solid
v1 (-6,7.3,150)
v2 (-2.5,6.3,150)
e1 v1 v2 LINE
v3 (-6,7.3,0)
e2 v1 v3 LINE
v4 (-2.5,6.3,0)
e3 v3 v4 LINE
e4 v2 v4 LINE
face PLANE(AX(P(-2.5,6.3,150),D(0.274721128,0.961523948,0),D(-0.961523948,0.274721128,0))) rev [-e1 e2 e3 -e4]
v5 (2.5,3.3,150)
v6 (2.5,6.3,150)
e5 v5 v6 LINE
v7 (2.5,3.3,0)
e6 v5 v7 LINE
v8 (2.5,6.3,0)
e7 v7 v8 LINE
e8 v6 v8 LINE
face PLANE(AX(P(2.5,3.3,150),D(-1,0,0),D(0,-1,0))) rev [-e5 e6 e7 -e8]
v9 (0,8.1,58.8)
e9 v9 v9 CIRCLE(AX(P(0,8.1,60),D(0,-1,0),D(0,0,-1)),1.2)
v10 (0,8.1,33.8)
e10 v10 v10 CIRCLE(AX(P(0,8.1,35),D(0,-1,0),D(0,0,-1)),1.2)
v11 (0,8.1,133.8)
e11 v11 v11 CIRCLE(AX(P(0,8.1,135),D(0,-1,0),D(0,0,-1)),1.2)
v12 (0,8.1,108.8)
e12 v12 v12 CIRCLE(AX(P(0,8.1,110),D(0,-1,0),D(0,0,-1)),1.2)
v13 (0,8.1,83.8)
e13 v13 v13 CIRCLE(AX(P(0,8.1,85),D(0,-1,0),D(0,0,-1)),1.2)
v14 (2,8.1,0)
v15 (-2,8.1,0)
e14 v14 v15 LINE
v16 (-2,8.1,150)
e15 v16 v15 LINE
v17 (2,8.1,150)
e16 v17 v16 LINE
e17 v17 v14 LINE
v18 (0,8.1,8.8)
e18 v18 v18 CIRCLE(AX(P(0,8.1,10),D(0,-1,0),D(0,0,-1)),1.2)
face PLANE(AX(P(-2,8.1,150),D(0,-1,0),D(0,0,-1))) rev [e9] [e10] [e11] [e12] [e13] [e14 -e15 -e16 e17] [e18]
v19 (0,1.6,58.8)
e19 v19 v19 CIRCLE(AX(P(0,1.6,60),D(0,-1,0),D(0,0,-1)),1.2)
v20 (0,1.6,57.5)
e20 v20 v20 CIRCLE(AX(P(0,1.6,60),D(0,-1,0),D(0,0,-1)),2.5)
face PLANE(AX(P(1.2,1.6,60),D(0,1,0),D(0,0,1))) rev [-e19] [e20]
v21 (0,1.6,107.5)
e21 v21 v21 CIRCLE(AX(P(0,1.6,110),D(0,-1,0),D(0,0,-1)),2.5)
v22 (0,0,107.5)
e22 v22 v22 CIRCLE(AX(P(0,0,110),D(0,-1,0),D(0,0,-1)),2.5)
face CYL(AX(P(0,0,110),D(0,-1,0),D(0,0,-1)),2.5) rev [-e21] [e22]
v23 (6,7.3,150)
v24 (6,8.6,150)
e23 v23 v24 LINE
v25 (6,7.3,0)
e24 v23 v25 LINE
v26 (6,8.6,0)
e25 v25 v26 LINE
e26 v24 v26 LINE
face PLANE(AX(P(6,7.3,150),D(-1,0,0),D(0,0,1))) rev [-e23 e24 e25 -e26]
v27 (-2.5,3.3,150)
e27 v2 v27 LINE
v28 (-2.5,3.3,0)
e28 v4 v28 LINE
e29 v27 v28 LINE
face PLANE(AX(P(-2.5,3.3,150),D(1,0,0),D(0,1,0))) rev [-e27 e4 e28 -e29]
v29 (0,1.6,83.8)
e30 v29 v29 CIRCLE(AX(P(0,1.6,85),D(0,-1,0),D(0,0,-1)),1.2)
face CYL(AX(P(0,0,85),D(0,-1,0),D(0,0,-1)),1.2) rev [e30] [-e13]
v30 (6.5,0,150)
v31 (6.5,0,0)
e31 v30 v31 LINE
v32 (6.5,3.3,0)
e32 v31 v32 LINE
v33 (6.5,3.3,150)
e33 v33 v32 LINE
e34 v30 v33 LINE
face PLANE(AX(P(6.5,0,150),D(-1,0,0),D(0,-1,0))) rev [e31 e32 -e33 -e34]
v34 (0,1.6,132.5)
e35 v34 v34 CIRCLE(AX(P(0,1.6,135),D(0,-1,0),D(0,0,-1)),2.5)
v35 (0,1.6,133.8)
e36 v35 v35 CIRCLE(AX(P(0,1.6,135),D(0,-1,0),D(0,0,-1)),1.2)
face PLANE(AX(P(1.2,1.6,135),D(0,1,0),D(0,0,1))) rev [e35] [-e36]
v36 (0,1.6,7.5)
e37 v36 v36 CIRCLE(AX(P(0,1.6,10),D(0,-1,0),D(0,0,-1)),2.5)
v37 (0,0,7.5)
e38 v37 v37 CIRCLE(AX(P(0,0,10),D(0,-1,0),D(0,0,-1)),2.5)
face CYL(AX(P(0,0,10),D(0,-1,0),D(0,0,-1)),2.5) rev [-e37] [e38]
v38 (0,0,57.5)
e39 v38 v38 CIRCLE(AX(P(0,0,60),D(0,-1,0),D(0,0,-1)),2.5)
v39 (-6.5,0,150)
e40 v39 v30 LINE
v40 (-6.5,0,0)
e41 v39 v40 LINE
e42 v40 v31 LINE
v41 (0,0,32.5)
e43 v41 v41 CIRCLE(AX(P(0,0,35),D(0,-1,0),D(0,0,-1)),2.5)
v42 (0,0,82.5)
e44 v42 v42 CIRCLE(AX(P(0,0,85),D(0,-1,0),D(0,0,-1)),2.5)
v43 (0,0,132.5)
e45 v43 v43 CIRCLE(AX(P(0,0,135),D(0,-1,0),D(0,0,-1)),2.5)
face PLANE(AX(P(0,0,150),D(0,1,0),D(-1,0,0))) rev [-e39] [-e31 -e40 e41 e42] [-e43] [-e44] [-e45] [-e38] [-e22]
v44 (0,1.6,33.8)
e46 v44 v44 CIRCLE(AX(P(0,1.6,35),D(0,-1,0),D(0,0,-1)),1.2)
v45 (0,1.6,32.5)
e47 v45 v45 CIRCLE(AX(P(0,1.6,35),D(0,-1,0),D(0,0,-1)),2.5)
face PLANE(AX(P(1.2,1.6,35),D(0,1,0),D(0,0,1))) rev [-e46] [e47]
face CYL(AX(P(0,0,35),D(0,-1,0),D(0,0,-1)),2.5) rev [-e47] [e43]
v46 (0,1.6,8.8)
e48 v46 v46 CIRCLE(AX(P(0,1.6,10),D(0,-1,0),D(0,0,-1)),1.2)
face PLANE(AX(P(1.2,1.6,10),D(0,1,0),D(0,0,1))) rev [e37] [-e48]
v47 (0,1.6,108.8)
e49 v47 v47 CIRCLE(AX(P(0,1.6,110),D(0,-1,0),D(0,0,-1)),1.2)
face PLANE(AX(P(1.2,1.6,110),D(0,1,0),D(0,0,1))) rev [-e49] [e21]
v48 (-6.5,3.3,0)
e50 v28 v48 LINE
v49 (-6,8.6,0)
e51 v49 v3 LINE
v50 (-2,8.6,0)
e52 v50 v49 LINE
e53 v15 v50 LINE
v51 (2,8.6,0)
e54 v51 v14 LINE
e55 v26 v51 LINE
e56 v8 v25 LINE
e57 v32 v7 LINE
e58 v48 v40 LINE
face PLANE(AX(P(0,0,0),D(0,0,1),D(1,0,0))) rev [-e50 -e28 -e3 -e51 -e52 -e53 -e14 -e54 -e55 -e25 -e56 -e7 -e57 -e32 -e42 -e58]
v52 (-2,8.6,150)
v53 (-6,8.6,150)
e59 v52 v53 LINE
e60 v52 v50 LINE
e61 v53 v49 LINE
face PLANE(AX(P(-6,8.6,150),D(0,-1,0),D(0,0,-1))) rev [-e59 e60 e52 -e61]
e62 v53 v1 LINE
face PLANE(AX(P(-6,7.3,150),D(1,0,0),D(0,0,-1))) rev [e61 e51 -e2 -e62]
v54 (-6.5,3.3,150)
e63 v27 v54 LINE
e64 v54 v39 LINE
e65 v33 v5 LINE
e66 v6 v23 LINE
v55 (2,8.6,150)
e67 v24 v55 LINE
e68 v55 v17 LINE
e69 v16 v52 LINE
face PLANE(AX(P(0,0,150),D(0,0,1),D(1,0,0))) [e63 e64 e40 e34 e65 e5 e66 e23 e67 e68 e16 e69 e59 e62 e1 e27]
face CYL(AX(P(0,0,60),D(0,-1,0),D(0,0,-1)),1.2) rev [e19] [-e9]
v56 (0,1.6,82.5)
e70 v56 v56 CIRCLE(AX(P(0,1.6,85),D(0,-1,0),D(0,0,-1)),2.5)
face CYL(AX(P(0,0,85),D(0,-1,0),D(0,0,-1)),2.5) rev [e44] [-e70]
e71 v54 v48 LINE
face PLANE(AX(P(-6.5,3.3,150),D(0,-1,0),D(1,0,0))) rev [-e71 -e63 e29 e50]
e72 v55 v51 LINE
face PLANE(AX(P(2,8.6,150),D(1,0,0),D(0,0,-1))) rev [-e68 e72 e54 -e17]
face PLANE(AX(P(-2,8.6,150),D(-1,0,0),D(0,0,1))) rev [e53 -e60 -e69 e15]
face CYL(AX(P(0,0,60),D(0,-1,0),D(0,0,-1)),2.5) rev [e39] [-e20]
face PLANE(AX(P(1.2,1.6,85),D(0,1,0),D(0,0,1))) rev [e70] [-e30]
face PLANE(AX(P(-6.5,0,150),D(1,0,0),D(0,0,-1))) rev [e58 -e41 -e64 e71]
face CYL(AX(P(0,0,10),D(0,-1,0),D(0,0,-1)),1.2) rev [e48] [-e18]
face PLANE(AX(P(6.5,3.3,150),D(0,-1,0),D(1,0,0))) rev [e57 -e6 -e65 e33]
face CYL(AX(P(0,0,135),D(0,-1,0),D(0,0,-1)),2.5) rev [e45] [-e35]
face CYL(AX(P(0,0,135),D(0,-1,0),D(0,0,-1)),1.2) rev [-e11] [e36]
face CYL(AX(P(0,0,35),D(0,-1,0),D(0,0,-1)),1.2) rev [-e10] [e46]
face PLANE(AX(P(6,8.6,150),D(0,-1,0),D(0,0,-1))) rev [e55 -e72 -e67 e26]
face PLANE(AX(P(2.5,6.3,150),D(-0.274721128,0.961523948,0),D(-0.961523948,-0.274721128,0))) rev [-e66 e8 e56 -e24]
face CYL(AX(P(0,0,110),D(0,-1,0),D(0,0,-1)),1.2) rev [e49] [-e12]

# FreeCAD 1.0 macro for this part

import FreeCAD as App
import Part
import Sketcher
from FreeCAD import Vector
Q = App.Units.Quantity

doc = App.newDocument("Part")
body = doc.addObject("PartDesign::Body", "Body")

# Sketch on XY plane
sketch1 = body.newObject("Sketcher::SketchObject", "Sketch")
sketch1.AttachmentSupport = (doc.getObject("XY_Plane"), [""])
sketch1.MapMode = "FlatFace"
sketch1.addGeometry([
    Part.LineSegment(Vector(-6.5, 0, 0), Vector(6.5, 0, 0)),  # 0
    Part.LineSegment(Vector(6.5, 0, 0), Vector(6.5, 3.3, 0)),  # 1
    Part.LineSegment(Vector(6.5, 3.3, 0), Vector(2.5, 3.3, 0)),  # 2
    Part.LineSegment(Vector(2.5, 3.3, 0), Vector(2.5, 6.3, 0)),  # 3
    Part.LineSegment(Vector(2.5, 6.3, 0), Vector(6, 7.3, 0)),  # 4
    Part.LineSegment(Vector(6, 7.3, 0), Vector(6, 8.6, 0)),  # 5
    Part.LineSegment(Vector(6, 8.6, 0), Vector(2, 8.6, 0)),  # 6
    Part.LineSegment(Vector(2, 8.6, 0), Vector(2, 8.1, 0)),  # 7
    Part.LineSegment(Vector(2, 8.1, 0), Vector(-2, 8.1, 0)),  # 8
    Part.LineSegment(Vector(-2, 8.1, 0), Vector(-2, 8.6, 0)),  # 9
    Part.LineSegment(Vector(-2, 8.6, 0), Vector(-6, 8.6, 0)),  # 10
    Part.LineSegment(Vector(-6, 8.6, 0), Vector(-6, 7.3, 0)),  # 11
    Part.LineSegment(Vector(-6, 7.3, 0), Vector(-2.5, 6.3, 0)),  # 12
    Part.LineSegment(Vector(-2.5, 6.3, 0), Vector(-2.5, 3.3, 0)),  # 13
    Part.LineSegment(Vector(-2.5, 3.3, 0), Vector(-6.5, 3.3, 0)),  # 14
    Part.LineSegment(Vector(-6.5, 3.3, 0), Vector(-6.5, 0, 0)),  # 15
], False)
sketch1.addConstraint([
    Sketcher.Constraint("Coincident", 0, 2, 1, 1),
    Sketcher.Constraint("Coincident", 1, 2, 2, 1),
    Sketcher.Constraint("Coincident", 2, 2, 3, 1),
    Sketcher.Constraint("Coincident", 3, 2, 4, 1),
    Sketcher.Constraint("Coincident", 4, 2, 5, 1),
    Sketcher.Constraint("Coincident", 5, 2, 6, 1),
    Sketcher.Constraint("Coincident", 6, 2, 7, 1),
    Sketcher.Constraint("Coincident", 7, 2, 8, 1),
    Sketcher.Constraint("Coincident", 8, 2, 9, 1),
    Sketcher.Constraint("Coincident", 9, 2, 10, 1),
    Sketcher.Constraint("Coincident", 10, 2, 11, 1),
    Sketcher.Constraint("Coincident", 11, 2, 12, 1),
    Sketcher.Constraint("Coincident", 12, 2, 13, 1),
    Sketcher.Constraint("Coincident", 13, 2, 14, 1),
    Sketcher.Constraint("Coincident", 14, 2, 15, 1),
    Sketcher.Constraint("Coincident", 15, 2, 0, 1),
    Sketcher.Constraint("Horizontal", 0),
    Sketcher.Constraint("Vertical", 1),
    Sketcher.Constraint("Horizontal", 2),
    Sketcher.Constraint("Vertical", 3),
    Sketcher.Constraint("Vertical", 5),
    Sketcher.Constraint("Horizontal", 6),
    Sketcher.Constraint("Vertical", 7),
    Sketcher.Constraint("Horizontal", 8),
    Sketcher.Constraint("Vertical", 9),
    Sketcher.Constraint("Horizontal", 10),
    Sketcher.Constraint("Vertical", 11),
    Sketcher.Constraint("Vertical", 13),
    Sketcher.Constraint("Horizontal", 14),
    Sketcher.Constraint("Vertical", 15),
    Sketcher.Constraint("Symmetric", 0, 2, 15, 2, -1, 1),
    Sketcher.Constraint("Symmetric", 6, 2, 9, 2, -2),
    Sketcher.Constraint("Symmetric", 4, 2, 11, 2, -2),
    Sketcher.Constraint("Symmetric", 3, 2, 12, 2, -2),
    Sketcher.Constraint("Horizontal", 2, 2, 13, 2),
    Sketcher.Constraint("Equal", 2, 6),
    Sketcher.Constraint("Equal", 6, 8),
    Sketcher.Constraint("DistanceX", 0, 1, 0, 2, Q("13 mm")),
    Sketcher.Constraint("DistanceX", 2, 2, 2, 1, Q("4 mm")),
    Sketcher.Constraint("DistanceY", 3, 1, 3, 2, Q("3 mm")),
    Sketcher.Constraint("DistanceY", 1, 1, 1, 2, Q("3.3 mm")),
    Sketcher.Constraint("DistanceY", 5, 1, 5, 2, Q("1.3 mm")),
    Sketcher.Constraint("DistanceY", 7, 2, 7, 1, Q("0.5 mm")),
    Sketcher.Constraint("DistanceY", 3, 2, 4, 2, Q("1 mm")),
])
pad1 = body.newObject("PartDesign::Pad", "Pad")
pad1.Profile = sketch1
pad1.Length = 150

# Sketch on XZ plane
sketch2 = body.newObject("Sketcher::SketchObject", "Sketch001")
sketch2.AttachmentSupport = (doc.getObject("XZ_Plane"), [""])
sketch2.MapMode = "FlatFace"
sketch2.addGeometry([
    Part.Circle(Vector(0, 85, 0), Vector(0, 0, 1), 1.2),  # 0
    Part.Circle(Vector(0, 60, 0), Vector(0, 0, 1), 1.2),  # 1
    Part.Circle(Vector(0, 35, 0), Vector(0, 0, 1), 1.2),  # 2
    Part.Circle(Vector(0, 10, 0), Vector(0, 0, 1), 1.2),  # 3
    Part.Circle(Vector(0, 110, 0), Vector(0, 0, 1), 1.2),  # 4
    Part.Circle(Vector(0, 135, 0), Vector(0, 0, 1), 1.2),  # 5
], False)
sketch2.addConstraint([
    Sketcher.Constraint("Equal", 0, 1),
    Sketcher.Constraint("Equal", 1, 2),
    Sketcher.Constraint("Equal", 2, 3),
    Sketcher.Constraint("Equal", 3, 4),
    Sketcher.Constraint("Equal", 4, 5),
    Sketcher.Constraint("PointOnObject", 0, 3, -2),
    Sketcher.Constraint("PointOnObject", 1, 3, -2),
    Sketcher.Constraint("PointOnObject", 2, 3, -2),
    Sketcher.Constraint("PointOnObject", 3, 3, -2),
    Sketcher.Constraint("PointOnObject", 4, 3, -2),
    Sketcher.Constraint("PointOnObject", 5, 3, -2),
    Sketcher.Constraint("Diameter", 0, Q("2.4 mm")),
    Sketcher.Constraint("DistanceY", -1, 1, 0, 3, Q("85 mm")),
    Sketcher.Constraint("DistanceY", -1, 1, 1, 3, Q("60 mm")),
    Sketcher.Constraint("DistanceY", -1, 1, 2, 3, Q("35 mm")),
    Sketcher.Constraint("DistanceY", -1, 1, 3, 3, Q("10 mm")),
    Sketcher.Constraint("DistanceY", -1, 1, 4, 3, Q("110 mm")),
    Sketcher.Constraint("DistanceY", -1, 1, 5, 3, Q("135 mm")),
])
doc.recompute()
hole = body.newObject("PartDesign::Hole", "Hole")
hole.Profile = sketch2
hole.ThreadType = "None"
hole.Diameter = 2.4
hole.DepthType = "ThroughAll"
hole.HoleCutType = "Counterbore"
hole.HoleCutDiameter = 5
hole.HoleCutDepth = 1.6

doc.recompute()
